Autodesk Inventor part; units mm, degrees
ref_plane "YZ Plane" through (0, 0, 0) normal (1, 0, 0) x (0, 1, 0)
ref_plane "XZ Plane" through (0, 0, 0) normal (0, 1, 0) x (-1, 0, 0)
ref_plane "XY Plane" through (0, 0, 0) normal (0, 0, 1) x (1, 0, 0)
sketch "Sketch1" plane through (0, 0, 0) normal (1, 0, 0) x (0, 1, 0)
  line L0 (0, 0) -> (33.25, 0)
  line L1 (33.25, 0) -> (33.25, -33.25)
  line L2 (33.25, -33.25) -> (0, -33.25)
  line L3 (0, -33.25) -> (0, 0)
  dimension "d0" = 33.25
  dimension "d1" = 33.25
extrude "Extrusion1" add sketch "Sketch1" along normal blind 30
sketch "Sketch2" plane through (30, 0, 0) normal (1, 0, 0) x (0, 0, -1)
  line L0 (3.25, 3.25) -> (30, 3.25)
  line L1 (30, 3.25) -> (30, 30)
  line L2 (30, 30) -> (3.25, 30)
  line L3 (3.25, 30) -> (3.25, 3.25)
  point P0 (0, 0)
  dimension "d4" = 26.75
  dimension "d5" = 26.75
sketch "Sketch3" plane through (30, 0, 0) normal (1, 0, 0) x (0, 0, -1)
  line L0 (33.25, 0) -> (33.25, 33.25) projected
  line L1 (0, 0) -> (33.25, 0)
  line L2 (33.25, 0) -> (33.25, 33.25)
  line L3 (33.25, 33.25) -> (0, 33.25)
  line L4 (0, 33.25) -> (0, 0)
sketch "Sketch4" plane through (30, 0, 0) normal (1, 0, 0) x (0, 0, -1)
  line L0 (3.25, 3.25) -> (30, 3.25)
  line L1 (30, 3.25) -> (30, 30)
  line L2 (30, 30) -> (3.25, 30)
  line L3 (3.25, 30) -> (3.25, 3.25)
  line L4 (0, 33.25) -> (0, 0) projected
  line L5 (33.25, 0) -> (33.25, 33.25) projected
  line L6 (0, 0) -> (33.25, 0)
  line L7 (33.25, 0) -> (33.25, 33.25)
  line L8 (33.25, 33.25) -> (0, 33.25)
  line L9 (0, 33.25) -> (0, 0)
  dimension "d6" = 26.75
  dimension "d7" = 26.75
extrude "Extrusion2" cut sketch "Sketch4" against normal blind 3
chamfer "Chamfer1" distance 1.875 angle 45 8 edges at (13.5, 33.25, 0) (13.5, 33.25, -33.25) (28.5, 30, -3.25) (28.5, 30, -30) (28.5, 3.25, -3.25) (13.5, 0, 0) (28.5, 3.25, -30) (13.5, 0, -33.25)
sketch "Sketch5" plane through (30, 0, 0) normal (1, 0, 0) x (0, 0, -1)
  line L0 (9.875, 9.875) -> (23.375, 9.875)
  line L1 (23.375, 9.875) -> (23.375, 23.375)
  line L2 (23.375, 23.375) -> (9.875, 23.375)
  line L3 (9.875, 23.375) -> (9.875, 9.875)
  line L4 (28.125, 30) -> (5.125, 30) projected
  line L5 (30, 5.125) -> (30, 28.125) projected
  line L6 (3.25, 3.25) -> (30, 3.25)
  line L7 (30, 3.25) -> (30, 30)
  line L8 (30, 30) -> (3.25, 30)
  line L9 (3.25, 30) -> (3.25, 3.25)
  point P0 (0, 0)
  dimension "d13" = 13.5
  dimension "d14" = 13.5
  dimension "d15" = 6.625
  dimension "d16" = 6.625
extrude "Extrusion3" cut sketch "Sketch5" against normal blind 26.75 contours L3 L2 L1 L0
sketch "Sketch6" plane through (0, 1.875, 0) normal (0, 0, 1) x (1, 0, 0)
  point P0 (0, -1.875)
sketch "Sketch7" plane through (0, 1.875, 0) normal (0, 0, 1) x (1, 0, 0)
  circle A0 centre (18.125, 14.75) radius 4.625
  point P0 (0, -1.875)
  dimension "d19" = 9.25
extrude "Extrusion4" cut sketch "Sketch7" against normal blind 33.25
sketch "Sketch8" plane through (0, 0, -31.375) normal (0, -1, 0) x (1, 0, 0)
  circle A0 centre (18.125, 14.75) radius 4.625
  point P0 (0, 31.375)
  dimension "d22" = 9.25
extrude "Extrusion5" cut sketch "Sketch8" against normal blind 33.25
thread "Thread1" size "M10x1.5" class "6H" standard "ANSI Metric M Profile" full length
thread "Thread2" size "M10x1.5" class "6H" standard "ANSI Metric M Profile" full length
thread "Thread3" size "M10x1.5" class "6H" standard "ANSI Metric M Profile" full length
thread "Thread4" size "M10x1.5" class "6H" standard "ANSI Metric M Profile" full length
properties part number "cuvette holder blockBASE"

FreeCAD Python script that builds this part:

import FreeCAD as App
import Part
import Sketcher


def edges_at(feature, points):
    """Names of the edges that pass closest to the given points."""
    edges = feature.Shape.Edges
    near = lambda p: min(range(len(edges)), key=lambda i: edges[i].distToShape(Part.Vertex(*p))[0])
    return sorted({f"Edge{near(p) + 1}" for p in points})


def add_polygon(sketch, points):
    """Adds a closed chain of lines whose ends are joined by coincident constraints."""
    first, n = sketch.GeometryCount, len(points)
    for a, b in zip(points, points[1:] + points[:1]):
        sketch.addGeometry(Part.LineSegment(App.Vector(*a, 0), App.Vector(*b, 0)), False)
    for i in range(n):
        sketch.addConstraint(Sketcher.Constraint("Coincident", first + i, 2, first + (i + 1) % n, 1))

doc = App.newDocument("Part")
body = doc.addObject("PartDesign::Body", "Body")

sketch1 = body.newObject("Sketcher::SketchObject", "Sketch")
sketch1.AttachmentSupport = (doc.getObject("YZ_Plane"), [""])
sketch1.MapMode = "FlatFace"
add_polygon(sketch1, [(33, 0), (0, 0), (0, -33), (33, -33)])
sketch1.addConstraint(Sketcher.Constraint("Horizontal", 0))
sketch1.addConstraint(Sketcher.Constraint("Vertical", 1))
sketch1.addConstraint(Sketcher.Constraint("Horizontal", 2))
sketch1.addConstraint(Sketcher.Constraint("Vertical", 3))
sketch1.addConstraint(Sketcher.Constraint("Coincident", 0, 2, -1, 1))
sketch1.addConstraint(Sketcher.Constraint("Equal", 2, 1))
sketch1.addConstraint(Sketcher.Constraint("DistanceX", 0, 2, 0, 1, 33.25))
pad1 = body.newObject("PartDesign::Pad", "Pad")
pad1.Profile = sketch1
pad1.Length = 30

sketch2 = body.newObject("Sketcher::SketchObject", "Sketch001")
sketch2.AttachmentSupport = (doc.getObject("YZ_Plane"), [""])
sketch2.MapMode = "FlatFace"
sketch2.AttachmentOffset = App.Placement(App.Vector(0, 0, 30), App.Rotation())
add_polygon(sketch2, [(33, -33), (33, 0), (0, 0), (0, -33)])
add_polygon(sketch2, [(3, -30), (3, -3), (30, -3), (30, -30)])
sketch2.addConstraint(Sketcher.Constraint("Vertical", 0))
sketch2.addConstraint(Sketcher.Constraint("Horizontal", 1))
sketch2.addConstraint(Sketcher.Constraint("Vertical", 2))
sketch2.addConstraint(Sketcher.Constraint("Horizontal", 3))
sketch2.addConstraint(Sketcher.Constraint("Vertical", 4))
sketch2.addConstraint(Sketcher.Constraint("Horizontal", 5))
sketch2.addConstraint(Sketcher.Constraint("Vertical", 6))
sketch2.addConstraint(Sketcher.Constraint("Horizontal", 7))
sketch2.addConstraint(Sketcher.Constraint("Coincident", 1, 2, -1, 1))
sketch2.addConstraint(Sketcher.Constraint("Equal", 3, 0))
sketch2.addConstraint(Sketcher.Constraint("Equal", 7, 4))
sketch2.addConstraint(Sketcher.Constraint("DistanceX", 5, 1, 5, 2, 26.75))
sketch2.addConstraint(Sketcher.Constraint("DistanceX", -1, 1, 5, 2, 30.0))
sketch2.addConstraint(Sketcher.Constraint("DistanceY", 6, 2, -1, 1, 30.0))
sketch2.addConstraint(Sketcher.Constraint("DistanceX", 4, 2, 0, 2, 30.0))
pocket1 = body.newObject("PartDesign::Pocket", "Pocket")
pocket1.Profile = sketch2
pocket1.Length = 3
doc.recompute()

chamfer = body.newObject("PartDesign::Chamfer", "Chamfer")
chamfer.Base = (pocket1, edges_at(pocket1, [
    (13.5, 33.25, 0),
    (13.5, 33.25, -33.25),
    (28.5, 30, -3.25),
    (28.5, 30, -30),
    (28.5, 3.25, -3.25),
    (13.5, 0, 0),
    (28.5, 3.25, -30),
    (13.5, 0, -33.25),
]))
chamfer.Size = 1.875

sketch3 = body.newObject("Sketcher::SketchObject", "Sketch002")
sketch3.AttachmentSupport = (doc.getObject("YZ_Plane"), [""])
sketch3.MapMode = "FlatFace"
sketch3.AttachmentOffset = App.Placement(App.Vector(0, 0, 30), App.Rotation())
add_polygon(sketch3, [(23, -10), (10, -10), (10, -23), (23, -23)])
sketch3.addConstraint(Sketcher.Constraint("Horizontal", 0))
sketch3.addConstraint(Sketcher.Constraint("Vertical", 1))
sketch3.addConstraint(Sketcher.Constraint("Horizontal", 2))
sketch3.addConstraint(Sketcher.Constraint("Vertical", 3))
sketch3.addConstraint(Sketcher.Constraint("Equal", 2, 1))
sketch3.addConstraint(Sketcher.Constraint("DistanceX", 0, 2, 0, 1, 13.5))
sketch3.addConstraint(Sketcher.Constraint("DistanceX", -1, 1, 0, 2, 9.875))
sketch3.addConstraint(Sketcher.Constraint("DistanceY", 0, 2, -1, 1, 9.875))
pocket2 = body.newObject("PartDesign::Pocket", "Pocket001")
pocket2.Profile = sketch3
pocket2.Length = 26.75

sketch4 = body.newObject("Sketcher::SketchObject", "Sketch003")
sketch4.AttachmentSupport = (doc.getObject("XY_Plane"), [""])
sketch4.MapMode = "FlatFace"
sketch4.addGeometry(Part.Circle(App.Vector(18.1, 16.6, 0), App.Vector(0, 0, 1), 4.6), False)
sketch4.addConstraint(Sketcher.Constraint("Diameter", 0, 9.25))
sketch4.addConstraint(Sketcher.Constraint("DistanceX", -1, 1, 0, 3, 18.125))
sketch4.addConstraint(Sketcher.Constraint("DistanceY", -1, 1, 0, 3, 16.625))
pocket3 = body.newObject("PartDesign::Pocket", "Pocket002")
pocket3.Profile = sketch4
pocket3.Length = 33.25

sketch5 = body.newObject("Sketcher::SketchObject", "Sketch004")
sketch5.AttachmentSupport = (doc.getObject("XZ_Plane"), [""])
sketch5.MapMode = "FlatFace"
sketch5.addGeometry(Part.Circle(App.Vector(18.1, -16.6, 0), App.Vector(0, 0, 1), 4.6), False)
sketch5.addConstraint(Sketcher.Constraint("Diameter", 0, 9.25))
sketch5.addConstraint(Sketcher.Constraint("DistanceX", -1, 1, 0, 3, 18.125))
sketch5.addConstraint(Sketcher.Constraint("DistanceY", 0, 3, -1, 1, 16.625))
pocket4 = body.newObject("PartDesign::Pocket", "Pocket003")
pocket4.Profile = sketch5
pocket4.Length = 33.25

doc.recompute()
